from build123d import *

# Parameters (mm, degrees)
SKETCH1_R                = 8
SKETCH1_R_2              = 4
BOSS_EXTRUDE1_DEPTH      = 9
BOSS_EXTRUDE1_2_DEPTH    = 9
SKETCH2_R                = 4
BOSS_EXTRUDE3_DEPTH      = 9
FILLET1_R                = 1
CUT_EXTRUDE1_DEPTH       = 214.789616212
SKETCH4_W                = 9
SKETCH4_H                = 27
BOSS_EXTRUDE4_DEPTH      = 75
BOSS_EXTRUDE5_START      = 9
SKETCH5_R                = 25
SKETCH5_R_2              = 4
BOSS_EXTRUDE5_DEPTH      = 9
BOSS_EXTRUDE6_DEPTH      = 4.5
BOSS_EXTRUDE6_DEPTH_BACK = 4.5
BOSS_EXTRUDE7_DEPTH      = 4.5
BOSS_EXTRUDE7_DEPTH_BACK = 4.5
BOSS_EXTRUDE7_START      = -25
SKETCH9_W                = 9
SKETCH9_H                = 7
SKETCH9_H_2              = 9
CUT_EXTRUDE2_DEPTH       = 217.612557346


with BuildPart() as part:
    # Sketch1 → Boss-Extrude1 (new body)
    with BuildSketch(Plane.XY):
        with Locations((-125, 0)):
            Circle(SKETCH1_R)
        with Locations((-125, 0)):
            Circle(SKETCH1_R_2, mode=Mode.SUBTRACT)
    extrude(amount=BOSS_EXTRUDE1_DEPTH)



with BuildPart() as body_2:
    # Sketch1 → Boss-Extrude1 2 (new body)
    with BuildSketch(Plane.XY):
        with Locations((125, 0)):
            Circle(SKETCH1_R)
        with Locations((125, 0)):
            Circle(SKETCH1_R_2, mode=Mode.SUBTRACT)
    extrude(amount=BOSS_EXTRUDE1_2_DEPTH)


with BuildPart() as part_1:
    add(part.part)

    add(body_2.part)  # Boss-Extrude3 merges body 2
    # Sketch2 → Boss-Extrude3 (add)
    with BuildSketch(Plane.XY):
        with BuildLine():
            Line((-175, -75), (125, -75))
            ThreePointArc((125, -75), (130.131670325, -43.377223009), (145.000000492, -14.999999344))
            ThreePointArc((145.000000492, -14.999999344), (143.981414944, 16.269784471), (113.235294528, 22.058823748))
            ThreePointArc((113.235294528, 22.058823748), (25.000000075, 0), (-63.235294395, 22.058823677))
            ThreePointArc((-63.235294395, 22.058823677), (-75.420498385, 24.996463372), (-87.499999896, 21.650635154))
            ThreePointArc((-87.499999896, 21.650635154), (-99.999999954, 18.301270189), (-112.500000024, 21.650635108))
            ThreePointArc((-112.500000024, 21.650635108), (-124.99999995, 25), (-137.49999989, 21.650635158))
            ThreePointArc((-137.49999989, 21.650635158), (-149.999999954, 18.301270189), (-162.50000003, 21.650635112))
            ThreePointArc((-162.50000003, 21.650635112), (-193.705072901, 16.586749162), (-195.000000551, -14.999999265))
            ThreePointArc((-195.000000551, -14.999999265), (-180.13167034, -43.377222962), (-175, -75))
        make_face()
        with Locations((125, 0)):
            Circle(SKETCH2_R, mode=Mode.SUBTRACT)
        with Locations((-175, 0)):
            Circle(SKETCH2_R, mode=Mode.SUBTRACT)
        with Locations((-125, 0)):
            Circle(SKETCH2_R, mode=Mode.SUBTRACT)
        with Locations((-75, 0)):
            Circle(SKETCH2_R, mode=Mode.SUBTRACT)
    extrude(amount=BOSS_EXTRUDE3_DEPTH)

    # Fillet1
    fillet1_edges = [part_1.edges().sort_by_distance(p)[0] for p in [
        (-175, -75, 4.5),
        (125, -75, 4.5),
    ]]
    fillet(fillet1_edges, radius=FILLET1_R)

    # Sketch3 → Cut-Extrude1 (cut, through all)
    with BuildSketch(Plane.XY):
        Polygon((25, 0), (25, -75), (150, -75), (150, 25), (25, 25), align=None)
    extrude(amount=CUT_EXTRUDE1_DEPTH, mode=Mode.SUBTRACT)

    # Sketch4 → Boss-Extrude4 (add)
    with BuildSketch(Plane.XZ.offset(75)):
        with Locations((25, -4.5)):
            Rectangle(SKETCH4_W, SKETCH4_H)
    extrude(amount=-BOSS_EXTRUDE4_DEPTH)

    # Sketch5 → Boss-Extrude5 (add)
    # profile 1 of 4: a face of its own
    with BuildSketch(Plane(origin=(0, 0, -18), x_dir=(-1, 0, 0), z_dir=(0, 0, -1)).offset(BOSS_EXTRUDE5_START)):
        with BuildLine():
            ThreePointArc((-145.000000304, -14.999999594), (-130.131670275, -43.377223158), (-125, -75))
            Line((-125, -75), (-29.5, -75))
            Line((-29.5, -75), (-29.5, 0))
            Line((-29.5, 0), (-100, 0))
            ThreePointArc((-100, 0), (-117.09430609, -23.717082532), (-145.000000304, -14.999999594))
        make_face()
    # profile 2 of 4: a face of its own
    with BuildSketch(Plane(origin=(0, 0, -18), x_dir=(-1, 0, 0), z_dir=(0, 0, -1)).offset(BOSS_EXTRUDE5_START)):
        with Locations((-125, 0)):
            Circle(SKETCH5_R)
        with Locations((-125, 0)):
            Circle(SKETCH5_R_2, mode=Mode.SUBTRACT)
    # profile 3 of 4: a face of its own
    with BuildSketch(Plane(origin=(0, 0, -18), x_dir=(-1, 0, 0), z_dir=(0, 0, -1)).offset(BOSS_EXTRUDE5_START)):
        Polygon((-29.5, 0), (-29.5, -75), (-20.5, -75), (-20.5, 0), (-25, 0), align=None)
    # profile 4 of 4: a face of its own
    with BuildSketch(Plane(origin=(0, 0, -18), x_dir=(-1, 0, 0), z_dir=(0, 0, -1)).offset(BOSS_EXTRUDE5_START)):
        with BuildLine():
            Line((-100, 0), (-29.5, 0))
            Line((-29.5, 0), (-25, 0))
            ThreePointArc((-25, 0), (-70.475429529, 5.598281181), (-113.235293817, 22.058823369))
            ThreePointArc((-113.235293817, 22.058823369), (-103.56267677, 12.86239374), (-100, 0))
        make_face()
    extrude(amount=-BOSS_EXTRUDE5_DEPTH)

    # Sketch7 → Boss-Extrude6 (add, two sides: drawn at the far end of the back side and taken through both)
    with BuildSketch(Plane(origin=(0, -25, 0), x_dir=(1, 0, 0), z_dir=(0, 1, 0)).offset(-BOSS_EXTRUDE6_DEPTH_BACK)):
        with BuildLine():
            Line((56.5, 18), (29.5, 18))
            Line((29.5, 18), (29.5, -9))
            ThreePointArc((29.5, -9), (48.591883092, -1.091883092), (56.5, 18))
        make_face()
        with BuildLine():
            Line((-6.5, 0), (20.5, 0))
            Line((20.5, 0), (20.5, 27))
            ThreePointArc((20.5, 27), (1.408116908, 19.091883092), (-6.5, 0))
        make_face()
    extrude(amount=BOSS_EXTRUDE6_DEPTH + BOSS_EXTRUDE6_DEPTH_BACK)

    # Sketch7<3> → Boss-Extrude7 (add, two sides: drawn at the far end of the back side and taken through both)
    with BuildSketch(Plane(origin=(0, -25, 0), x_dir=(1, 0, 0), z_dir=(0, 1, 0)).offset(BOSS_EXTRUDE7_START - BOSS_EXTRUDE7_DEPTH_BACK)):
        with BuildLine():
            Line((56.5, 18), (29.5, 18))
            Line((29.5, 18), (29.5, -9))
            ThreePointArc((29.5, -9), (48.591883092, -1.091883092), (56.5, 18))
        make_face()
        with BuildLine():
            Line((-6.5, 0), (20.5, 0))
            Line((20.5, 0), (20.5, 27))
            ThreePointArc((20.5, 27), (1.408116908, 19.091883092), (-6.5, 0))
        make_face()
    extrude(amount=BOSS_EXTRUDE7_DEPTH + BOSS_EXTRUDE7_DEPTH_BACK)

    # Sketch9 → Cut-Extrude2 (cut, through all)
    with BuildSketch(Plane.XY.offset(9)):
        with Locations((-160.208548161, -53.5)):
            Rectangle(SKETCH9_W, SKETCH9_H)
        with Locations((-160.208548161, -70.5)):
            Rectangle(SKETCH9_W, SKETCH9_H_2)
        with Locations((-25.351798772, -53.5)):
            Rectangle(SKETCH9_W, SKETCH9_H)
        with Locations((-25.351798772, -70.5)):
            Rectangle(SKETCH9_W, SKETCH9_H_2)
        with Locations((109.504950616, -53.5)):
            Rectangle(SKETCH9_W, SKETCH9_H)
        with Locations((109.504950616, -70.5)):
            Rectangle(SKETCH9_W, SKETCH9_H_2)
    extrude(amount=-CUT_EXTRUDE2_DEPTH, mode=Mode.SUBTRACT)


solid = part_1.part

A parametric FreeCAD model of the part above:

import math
import FreeCAD as App
import Part
import Sketcher
Q = App.Units.Quantity


def edges_at(feature, points):
    """Names of the edges that pass closest to the given points."""
    edges = feature.Shape.Edges
    near = lambda p: min(range(len(edges)), key=lambda i: edges[i].distToShape(Part.Vertex(*p))[0])
    return sorted({f"Edge{near(p) + 1}" for p in points})


def add_polygon(sketch, points):
    """Adds a closed chain of lines whose ends are joined by coincident constraints."""
    first, n = sketch.GeometryCount, len(points)
    for a, b in zip(points, points[1:] + points[:1]):
        sketch.addGeometry(Part.LineSegment(App.Vector(*a, 0), App.Vector(*b, 0)), False)
    for i in range(n):
        sketch.addConstraint(Sketcher.Constraint("Coincident", first + i, 2, first + (i + 1) % n, 1))

doc = App.newDocument("Part")
body = doc.addObject("PartDesign::Body", "Body")

sketch1 = body.newObject("Sketcher::SketchObject", "Sketch")
sketch1.AttachmentSupport = (doc.getObject("XY_Plane"), [""])
sketch1.MapMode = "FlatFace"
sketch1.addGeometry([
    Part.Circle(App.Vector(-125, 0, 0), App.Vector(0, 0, 1), 8),
    Part.Circle(App.Vector(-125, 0, 0), App.Vector(0, 0, 1), 4),
], False)
sketch1.addConstraint([
    Sketcher.Constraint("Coincident", 1, 3, 0, 3),
    Sketcher.Constraint("PointOnObject", 0, 3, -1),
    Sketcher.Constraint("Diameter", 0, Q("16 mm")),
    Sketcher.Constraint("Diameter", 1, Q("8 mm")),
    Sketcher.Constraint("DistanceX", 0, 3, -1, 1, Q("125 mm")),
])
pad1 = body.newObject("PartDesign::Pad", "Pad")
pad1.Profile = sketch1
pad1.Length = 9
body2 = doc.addObject("PartDesign::Body", "Body001")

sketch2 = body2.newObject("Sketcher::SketchObject", "Sketch001")
sketch2.AttachmentSupport = (doc.getObject("XY_Plane001"), [""])
sketch2.MapMode = "FlatFace"
sketch2.addGeometry([
    Part.Circle(App.Vector(125, 0, 0), App.Vector(0, 0, 1), 8),
    Part.Circle(App.Vector(125, 0, 0), App.Vector(0, 0, 1), 4),
], False)
sketch2.addConstraint([
    Sketcher.Constraint("Coincident", 1, 3, 0, 3),
    Sketcher.Constraint("PointOnObject", 0, 3, -1),
    Sketcher.Constraint("Diameter", 0, Q("16 mm")),
    Sketcher.Constraint("Diameter", 1, Q("8 mm")),
    Sketcher.Constraint("DistanceX", -1, 1, 0, 3, Q("125 mm")),
])
pad2 = body2.newObject("PartDesign::Pad", "Pad001")
pad2.Profile = sketch2
pad2.Length = 9
body.AllowCompound = True
doc.recompute()

boolean = body.newObject("PartDesign::Boolean", "Boolean")
boolean.Type = "Fuse"
boolean.addObjects([body2])

sketch3 = body.newObject("Sketcher::SketchObject", "Sketch002")
sketch3.AttachmentSupport = (doc.getObject("XY_Plane"), [""])
sketch3.MapMode = "FlatFace"
sketch3.addGeometry([
    Part.LineSegment(App.Vector(-175, -75, 0), App.Vector(125, -75, 0)),
    Part.ArcOfCircle(Part.Circle(App.Vector(225, -75, 0), App.Vector(0, 0, 1), 100), math.radians(143.130102), math.radians(180)),
    Part.ArcOfCircle(Part.Circle(App.Vector(125, 0, 0), App.Vector(0, 0, 1), 25), math.radians(-36.869896), math.radians(118.072486)),
    Part.ArcOfCircle(Part.Circle(App.Vector(25, 187.5, 0), App.Vector(0, 0, 1), 187.5), math.radians(-118.072487), math.radians(-61.927513)),
    Part.ArcOfCircle(Part.Circle(App.Vector(-75, 0, 0), App.Vector(0, 0, 1), 25), math.radians(61.927514), math.radians(120)),
    Part.ArcOfCircle(Part.Circle(App.Vector(-100, 43.30127, 0), App.Vector(0, 0, 1), 25), math.radians(-120), math.radians(-60)),
    Part.ArcOfCircle(Part.Circle(App.Vector(-125, 0, 0), App.Vector(0, 0, 1), 25), math.radians(60), math.radians(120)),
    Part.ArcOfCircle(Part.Circle(App.Vector(-150, 43.30127, 0), App.Vector(0, 0, 1), 25), math.radians(-120), math.radians(-60)),
    Part.ArcOfCircle(Part.Circle(App.Vector(-175, 0, 0), App.Vector(0, 0, 1), 25), math.radians(60), math.radians(216.869896)),
    Part.ArcOfCircle(Part.Circle(App.Vector(-275, -75, 0), App.Vector(0, 0, 1), 100), math.radians(0), math.radians(36.869898)),
    Part.Circle(App.Vector(-175, 0, 0), App.Vector(0, 0, 1), 4),
    Part.Circle(App.Vector(-125, 0, 0), App.Vector(0, 0, 1), 4),
    Part.Circle(App.Vector(-75, 0, 0), App.Vector(0, 0, 1), 4),
    Part.Circle(App.Vector(125, 0, 0), App.Vector(0, 0, 1), 4),
], False)
sketch3.addConstraint([
    Sketcher.Constraint("Coincident", 0, 2, 1, 2),
    Sketcher.Constraint("Tangent", 1, 1, 2, 1),
    Sketcher.Constraint("Tangent", 2, 2, 3, 2),
    Sketcher.Constraint("Tangent", 3, 1, 4, 1),
    Sketcher.Constraint("Tangent", 4, 2, 5, 2),
    Sketcher.Constraint("Tangent", 5, 1, 6, 1),
    Sketcher.Constraint("Tangent", 6, 2, 7, 2),
    Sketcher.Constraint("Tangent", 7, 1, 8, 1),
    Sketcher.Constraint("Tangent", 8, 2, 9, 2),
    Sketcher.Constraint("Coincident", 9, 1, 0, 1),
    Sketcher.Constraint("Horizontal", 0),
    Sketcher.Constraint("Coincident", 10, 3, 8, 3),
    Sketcher.Constraint("Coincident", 11, 3, 6, 3),
    Sketcher.Constraint("Coincident", 12, 3, 4, 3),
    Sketcher.Constraint("Coincident", 13, 3, 2, 3),
    Sketcher.Constraint("Equal", 2, 4),
    Sketcher.Constraint("Equal", 4, 5),
    Sketcher.Constraint("Equal", 5, 6),
    Sketcher.Constraint("Equal", 6, 7),
    Sketcher.Constraint("Equal", 7, 8),
    Sketcher.Constraint("Equal", 1, 9),
    Sketcher.Constraint("Equal", 10, 11),
    Sketcher.Constraint("Equal", 11, 12),
    Sketcher.Constraint("Equal", 12, 13),
    Sketcher.Constraint("Symmetric", 2, 3, 6, 3, -1, 1),
    Sketcher.Constraint("PointOnObject", 2, 3, -1),
    Sketcher.Constraint("PointOnObject", 4, 3, -1),
    Sketcher.Constraint("PointOnObject", 8, 3, -1),
    Sketcher.Constraint("Horizontal", 5, 3, 7, 3),
    Sketcher.Constraint("Horizontal", 1, 3, 9, 3),
    Sketcher.Constraint("Horizontal", 9, 3, 0, 2),
    Sketcher.Constraint("Vertical", 13, 3, 0, 2),
    Sketcher.Constraint("Diameter", 10, Q("8 mm")),
    Sketcher.Constraint("Radius", 1, Q("100 mm")),
    Sketcher.Constraint("Radius", 2, Q("25 mm")),
    Sketcher.Constraint("Radius", 3, Q("187.5 mm")),
    Sketcher.Constraint("DistanceX", 0, 1, 0, 2, Q("300 mm")),
    Sketcher.Constraint("DistanceX", -1, 1, 1, 3, Q("225 mm")),
])
pad3 = body.newObject("PartDesign::Pad", "Pad002")
pad3.Profile = sketch3
pad3.Length = 9
doc.recompute()

fillet = body.newObject("PartDesign::Fillet", "Fillet")
fillet.Base = (pad3, edges_at(pad3, [(-175, -75, 4.5), (125, -75, 4.5)]))
fillet.Radius = 1

sketch4 = body.newObject("Sketcher::SketchObject", "Sketch003")
sketch4.AttachmentSupport = (doc.getObject("XY_Plane"), [""])
sketch4.MapMode = "FlatFace"
add_polygon(sketch4, [(25, -75), (150, -75), (150, 25), (25, 25)])
sketch4.addConstraint([
    Sketcher.Constraint("Horizontal", 0),
    Sketcher.Constraint("Vertical", 1),
    Sketcher.Constraint("Horizontal", 2),
    Sketcher.Constraint("Vertical", 3),
    Sketcher.Constraint("DistanceX", 0, 1, 0, 2, Q("125 mm")),
    Sketcher.Constraint("DistanceY", 1, 1, 1, 2, Q("100 mm")),
    Sketcher.Constraint("DistanceX", -1, 1, 0, 2, Q("150 mm")),
    Sketcher.Constraint("DistanceY", 0, 2, -1, 1, Q("75 mm")),
])
pocket1 = body.newObject("PartDesign::Pocket", "Pocket")
pocket1.Profile = sketch4
pocket1.Type = "ThroughAll"
pocket1.Reversed = True

sketch5 = body.newObject("Sketcher::SketchObject", "Sketch004")
sketch5.AttachmentSupport = (doc.getObject("XZ_Plane"), [""])
sketch5.MapMode = "FlatFace"
sketch5.AttachmentOffset = App.Placement(App.Vector(0, 0, 75), App.Rotation())
add_polygon(sketch5, [(20.5, 9), (20.5, -18), (29.5, -18), (29.5, 9)])
sketch5.addConstraint([
    Sketcher.Constraint("Vertical", 0),
    Sketcher.Constraint("Horizontal", 1),
    Sketcher.Constraint("Vertical", 2),
    Sketcher.Constraint("Horizontal", 3),
    Sketcher.Constraint("DistanceX", 1, 1, 1, 2, Q("9 mm")),
    Sketcher.Constraint("DistanceY", 0, 2, 0, 1, Q("27 mm")),
    Sketcher.Constraint("DistanceY", 0, 2, -1, 1, Q("18 mm")),
    Sketcher.Constraint("DistanceX", -1, 1, 0, 2, Q("20.5 mm")),
])
pad4 = body.newObject("PartDesign::Pad", "Pad003")
pad4.Profile = sketch5
pad4.Length = 75
pad4.Reversed = True

sketch6 = body.newObject("Sketcher::SketchObject", "Sketch005")
sketch6.AttachmentSupport = (doc.getObject("XY_Plane"), [""])
sketch6.MapMode = "FlatFace"
sketch6.AttachmentOffset = App.Placement(App.Vector(0, 0, -27), App.Rotation())
sketch6.addGeometry([
    Part.ArcOfCircle(Part.Circle(App.Vector(225, -75, 0), App.Vector(0, 0, 1), 100), math.radians(143.130102), math.radians(180)),
    Part.LineSegment(App.Vector(125, -75, 0), App.Vector(20.5, -75, 0)),
    Part.LineSegment(App.Vector(20.5, -75, 0), App.Vector(20.5, 0, 0)),
    Part.LineSegment(App.Vector(20.5, 0, 0), App.Vector(25, 0, 0)),
    Part.ArcOfCircle(Part.Circle(App.Vector(25, 187.5, 0), App.Vector(0, 0, 1), 187.5), math.radians(-90), math.radians(-61.927513)),
    Part.ArcOfCircle(Part.Circle(App.Vector(125, 0, 0), App.Vector(0, 0, 1), 25), math.radians(-36.869896), math.radians(118.072488)),
    Part.Circle(App.Vector(125, 0, 0), App.Vector(0, 0, 1), 4),
], False)
sketch6.addConstraint([
    Sketcher.Constraint("Coincident", 0, 2, 1, 1),
    Sketcher.Constraint("Coincident", 1, 2, 2, 1),
    Sketcher.Constraint("Coincident", 2, 2, 3, 1),
    Sketcher.Constraint("Tangent", 3, 2, 4, 1),
    Sketcher.Constraint("Tangent", 4, 2, 5, 2),
    Sketcher.Constraint("Tangent", 5, 1, 0, 1),
    Sketcher.Constraint("Horizontal", 1),
    Sketcher.Constraint("Vertical", 2),
    Sketcher.Constraint("Horizontal", 3),
    Sketcher.Constraint("Coincident", 6, 3, 5, 3),
    Sketcher.Constraint("PointOnObject", 5, 3, -1),
    Sketcher.Constraint("PointOnObject", 2, 2, -1),
    Sketcher.Constraint("Vertical", 6, 3, 0, 2),
    Sketcher.Constraint("Diameter", 6, Q("8 mm")),
    Sketcher.Constraint("Radius", 0, Q("100 mm")),
    Sketcher.Constraint("Radius", 5, Q("25 mm")),
    Sketcher.Constraint("Radius", 4, Q("187.5 mm")),
    Sketcher.Constraint("DistanceY", 2, 1, 2, 2, Q("75 mm")),
    Sketcher.Constraint("DistanceX", 1, 2, 1, 1, Q("104.5 mm")),
    Sketcher.Constraint("DistanceX", -1, 1, 0, 3, Q("225 mm")),
])
pad5 = body.newObject("PartDesign::Pad", "Pad004")
pad5.Profile = sketch6
pad5.Length = 9

sketch7 = body.newObject("Sketcher::SketchObject", "Sketch006")
sketch7.AttachmentSupport = (doc.getObject("XZ_Plane"), [""])
sketch7.MapMode = "FlatFace"
sketch7.AttachmentOffset = App.Placement(App.Vector(0, 0, 25), App.Rotation())
sketch7.addGeometry([
    Part.LineSegment(App.Vector(56.5, -18, 0), App.Vector(29.5, -18, 0)),
    Part.LineSegment(App.Vector(29.5, -18, 0), App.Vector(29.5, 9, 0)),
    Part.ArcOfCircle(Part.Circle(App.Vector(29.5, -18, 0), App.Vector(0, 0, 1), 27), math.radians(0), math.radians(90)),
    Part.LineSegment(App.Vector(-6.5, 0, 0), App.Vector(20.5, 0, 0)),
    Part.LineSegment(App.Vector(20.5, 0, 0), App.Vector(20.5, -27, 0)),
    Part.ArcOfCircle(Part.Circle(App.Vector(20.5, 0, 0), App.Vector(0, 0, 1), 27), math.radians(180), math.radians(270)),
], False)
sketch7.addConstraint([
    Sketcher.Constraint("Coincident", 0, 2, 1, 1),
    Sketcher.Constraint("Coincident", 1, 2, 2, 2),
    Sketcher.Constraint("Coincident", 2, 1, 0, 1),
    Sketcher.Constraint("Coincident", 3, 2, 4, 1),
    Sketcher.Constraint("Coincident", 4, 2, 5, 2),
    Sketcher.Constraint("Coincident", 5, 1, 3, 1),
    Sketcher.Constraint("Horizontal", 0),
    Sketcher.Constraint("Vertical", 1),
    Sketcher.Constraint("Horizontal", 3),
    Sketcher.Constraint("Vertical", 4),
    Sketcher.Constraint("Coincident", 0, 2, 2, 3),
    Sketcher.Constraint("Coincident", 3, 2, 5, 3),
    Sketcher.Constraint("Equal", 2, 5),
    Sketcher.Constraint("PointOnObject", 5, 3, -1),
    Sketcher.Constraint("Radius", 2, Q("27 mm")),
    Sketcher.Constraint("DistanceY", 2, 3, -1, 1, Q("18 mm")),
    Sketcher.Constraint("DistanceX", 5, 3, 2, 3, Q("9 mm")),
    Sketcher.Constraint("DistanceX", -1, 1, 2, 3, Q("29.5 mm")),
])
pad6 = body.newObject("PartDesign::Pad", "Pad005")
pad6.Profile = sketch7
pad6.Type = "TwoLengths"
pad6.Length = 4.5
pad6.Length2 = 4.5
pad6.Reversed = True

sketch8 = body.newObject("Sketcher::SketchObject", "Sketch007")
sketch8.AttachmentSupport = (doc.getObject("XZ_Plane"), [""])
sketch8.MapMode = "FlatFace"
sketch8.AttachmentOffset = App.Placement(App.Vector(0, 0, 50), App.Rotation())
sketch8.addGeometry([
    Part.LineSegment(App.Vector(56.5, -18, 0), App.Vector(29.5, -18, 0)),
    Part.LineSegment(App.Vector(29.5, -18, 0), App.Vector(29.5, 9, 0)),
    Part.ArcOfCircle(Part.Circle(App.Vector(29.5, -18, 0), App.Vector(0, 0, 1), 27), math.radians(0), math.radians(90)),
    Part.LineSegment(App.Vector(-6.5, 0, 0), App.Vector(20.5, 0, 0)),
    Part.LineSegment(App.Vector(20.5, 0, 0), App.Vector(20.5, -27, 0)),
    Part.ArcOfCircle(Part.Circle(App.Vector(20.5, 0, 0), App.Vector(0, 0, 1), 27), math.radians(180), math.radians(270)),
], False)
sketch8.addConstraint([
    Sketcher.Constraint("Coincident", 0, 2, 1, 1),
    Sketcher.Constraint("Coincident", 1, 2, 2, 2),
    Sketcher.Constraint("Coincident", 2, 1, 0, 1),
    Sketcher.Constraint("Coincident", 3, 2, 4, 1),
    Sketcher.Constraint("Coincident", 4, 2, 5, 2),
    Sketcher.Constraint("Coincident", 5, 1, 3, 1),
    Sketcher.Constraint("Horizontal", 0),
    Sketcher.Constraint("Vertical", 1),
    Sketcher.Constraint("Horizontal", 3),
    Sketcher.Constraint("Vertical", 4),
    Sketcher.Constraint("Coincident", 0, 2, 2, 3),
    Sketcher.Constraint("Coincident", 3, 2, 5, 3),
    Sketcher.Constraint("Equal", 2, 5),
    Sketcher.Constraint("PointOnObject", 5, 3, -1),
    Sketcher.Constraint("Radius", 2, Q("27 mm")),
    Sketcher.Constraint("DistanceY", 2, 3, -1, 1, Q("18 mm")),
    Sketcher.Constraint("DistanceX", 5, 3, 2, 3, Q("9 mm")),
    Sketcher.Constraint("DistanceX", -1, 1, 2, 3, Q("29.5 mm")),
])
pad7 = body.newObject("PartDesign::Pad", "Pad006")
pad7.Profile = sketch8
pad7.Type = "TwoLengths"
pad7.Length = 4.5
pad7.Length2 = 4.5
pad7.Reversed = True

sketch9 = body.newObject("Sketcher::SketchObject", "Sketch008")
sketch9.AttachmentSupport = (doc.getObject("XY_Plane"), [""])
sketch9.MapMode = "FlatFace"
sketch9.AttachmentOffset = App.Placement(App.Vector(0, 0, 9), App.Rotation())
add_polygon(sketch9, [(-164.708548, -50), (-164.708548, -57), (-155.708548, -57), (-155.708548, -50)])
add_polygon(sketch9, [(-164.708548, -66), (-164.708548, -75), (-155.708548, -75), (-155.708548, -66)])
add_polygon(sketch9, [(-29.851799, -50), (-29.851799, -57), (-20.851799, -57), (-20.851799, -50)])
add_polygon(sketch9, [(-29.851799, -66), (-29.851799, -75), (-20.851799, -75), (-20.851799, -66)])
add_polygon(sketch9, [(105.004951, -50), (105.004951, -57), (114.004951, -57), (114.004951, -50)])
add_polygon(sketch9, [(105.004951, -66), (105.004951, -75), (114.004951, -75), (114.004951, -66)])
sketch9.addConstraint([
    Sketcher.Constraint("Vertical", 0),
    Sketcher.Constraint("Horizontal", 1),
    Sketcher.Constraint("Vertical", 2),
    Sketcher.Constraint("Horizontal", 3),
    Sketcher.Constraint("Vertical", 4),
    Sketcher.Constraint("Horizontal", 5),
    Sketcher.Constraint("Vertical", 6),
    Sketcher.Constraint("Horizontal", 7),
    Sketcher.Constraint("Vertical", 8),
    Sketcher.Constraint("Horizontal", 9),
    Sketcher.Constraint("Vertical", 10),
    Sketcher.Constraint("Horizontal", 11),
    Sketcher.Constraint("Vertical", 12),
    Sketcher.Constraint("Horizontal", 13),
    Sketcher.Constraint("Vertical", 14),
    Sketcher.Constraint("Horizontal", 15),
    Sketcher.Constraint("Vertical", 16),
    Sketcher.Constraint("Horizontal", 17),
    Sketcher.Constraint("Vertical", 18),
    Sketcher.Constraint("Horizontal", 19),
    Sketcher.Constraint("Vertical", 20),
    Sketcher.Constraint("Horizontal", 21),
    Sketcher.Constraint("Vertical", 22),
    Sketcher.Constraint("Horizontal", 23),
    Sketcher.Constraint("Horizontal", 1, 2, 8, 2),
    Sketcher.Constraint("Horizontal", 3, 2, 10, 2),
    Sketcher.Constraint("Horizontal", 5, 2, 12, 2),
    Sketcher.Constraint("Horizontal", 7, 2, 14, 2),
    Sketcher.Constraint("Horizontal", 9, 2, 16, 2),
    Sketcher.Constraint("Horizontal", 11, 2, 18, 2),
    Sketcher.Constraint("Horizontal", 13, 2, 20, 2),
    Sketcher.Constraint("Horizontal", 15, 2, 22, 2),
    Sketcher.Constraint("Vertical", 3, 2, 4, 2),
    Sketcher.Constraint("Vertical", 2, 2, 5, 2),
    Sketcher.Constraint("Vertical", 11, 2, 12, 2),
    Sketcher.Constraint("Vertical", 10, 2, 13, 2),
    Sketcher.Constraint("Vertical", 19, 2, 20, 2),
    Sketcher.Constraint("Vertical", 18, 2, 21, 2),
    Sketcher.Constraint("Equal", 7, 9),
    Sketcher.Constraint("Equal", 15, 17),
    Sketcher.Constraint("Equal", 23, 4),
    Sketcher.Constraint("DistanceX", 1, 1, 1, 2, Q("9 mm")),
    Sketcher.Constraint("DistanceY", 0, 2, 0, 1, Q("7 mm")),
    Sketcher.Constraint("DistanceY", 0, 2, -1, 1, Q("57 mm")),
    Sketcher.Constraint("DistanceY", 4, 2, -1, 1, Q("75 mm")),
    Sketcher.Constraint("DistanceX", 8, 2, -1, 1, Q("29.851799 mm")),
    Sketcher.Constraint("DistanceX", 0, 2, -1, 1, Q("164.708548 mm")),
    Sketcher.Constraint("DistanceX", -1, 1, 16, 2, Q("105.004951 mm")),
])
pocket2 = body.newObject("PartDesign::Pocket", "Pocket001")
pocket2.Profile = sketch9
pocket2.Type = "ThroughAll"

doc.recompute()
